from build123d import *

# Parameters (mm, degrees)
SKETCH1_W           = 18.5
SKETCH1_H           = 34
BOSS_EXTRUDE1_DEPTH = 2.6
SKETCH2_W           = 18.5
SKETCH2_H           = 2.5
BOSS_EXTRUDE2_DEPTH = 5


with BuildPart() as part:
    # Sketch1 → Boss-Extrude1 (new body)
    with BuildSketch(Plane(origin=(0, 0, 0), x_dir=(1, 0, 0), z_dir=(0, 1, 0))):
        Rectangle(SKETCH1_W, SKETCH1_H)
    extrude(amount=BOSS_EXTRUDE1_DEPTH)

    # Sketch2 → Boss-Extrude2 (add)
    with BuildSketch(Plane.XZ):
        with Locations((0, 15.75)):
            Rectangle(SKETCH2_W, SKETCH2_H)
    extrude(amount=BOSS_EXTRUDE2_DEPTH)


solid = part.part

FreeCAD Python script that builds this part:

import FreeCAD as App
import Part
import Sketcher
Q = App.Units.Quantity


def add_polygon(sketch, points):
    """Adds a closed chain of lines whose ends are joined by coincident constraints."""
    first, n = sketch.GeometryCount, len(points)
    for a, b in zip(points, points[1:] + points[:1]):
        sketch.addGeometry(Part.LineSegment(App.Vector(*a, 0), App.Vector(*b, 0)), False)
    for i in range(n):
        sketch.addConstraint(Sketcher.Constraint("Coincident", first + i, 2, first + (i + 1) % n, 1))

doc = App.newDocument("Part")
body = doc.addObject("PartDesign::Body", "Body")

sketch1 = body.newObject("Sketcher::SketchObject", "Sketch")
sketch1.AttachmentSupport = (doc.getObject("XZ_Plane"), [""])
sketch1.MapMode = "FlatFace"
add_polygon(sketch1, [(-9.25, -17), (-9.25, 17), (9.25, 17), (9.25, -17)])
sketch1.addConstraint(Sketcher.Constraint("Vertical", 0))
sketch1.addConstraint(Sketcher.Constraint("Horizontal", 1))
sketch1.addConstraint(Sketcher.Constraint("Vertical", 2))
sketch1.addConstraint(Sketcher.Constraint("Horizontal", 3))
sketch1.addConstraint(Sketcher.Constraint("Symmetric", 0, 2, 2, 2, -1, 1))
sketch1.addConstraint(Sketcher.Constraint("DistanceY", 0, 1, 0, 2, Q("34 mm")))
sketch1.addConstraint(Sketcher.Constraint("DistanceX", 1, 1, 1, 2, Q("18.5 mm")))
pad1 = body.newObject("PartDesign::Pad", "Pad")
pad1.Profile = sketch1
pad1.Length = 2.6
pad1.Reversed = True

sketch2 = body.newObject("Sketcher::SketchObject", "Sketch001")
sketch2.AttachmentSupport = (doc.getObject("XZ_Plane"), [""])
sketch2.MapMode = "FlatFace"
add_polygon(sketch2, [(-9.25, 17), (-9.25, 14.5), (9.25, 14.5), (9.25, 17)])
sketch2.addConstraint(Sketcher.Constraint("Vertical", 0))
sketch2.addConstraint(Sketcher.Constraint("Horizontal", 1))
sketch2.addConstraint(Sketcher.Constraint("Vertical", 2))
sketch2.addConstraint(Sketcher.Constraint("Horizontal", 3))
sketch2.addConstraint(Sketcher.Constraint("DistanceX", 1, 1, 1, 2, Q("18.5 mm")))
sketch2.addConstraint(Sketcher.Constraint("DistanceY", 0, 2, 0, 1, Q("2.5 mm")))
sketch2.addConstraint(Sketcher.Constraint("DistanceY", -1, 1, 2, 2, Q("17 mm")))
sketch2.addConstraint(Sketcher.Constraint("DistanceX", 0, 2, -1, 1, Q("9.25 mm")))
pad2 = body.newObject("PartDesign::Pad", "Pad001")
pad2.Profile = sketch2
pad2.Length = 5

doc.recompute()
